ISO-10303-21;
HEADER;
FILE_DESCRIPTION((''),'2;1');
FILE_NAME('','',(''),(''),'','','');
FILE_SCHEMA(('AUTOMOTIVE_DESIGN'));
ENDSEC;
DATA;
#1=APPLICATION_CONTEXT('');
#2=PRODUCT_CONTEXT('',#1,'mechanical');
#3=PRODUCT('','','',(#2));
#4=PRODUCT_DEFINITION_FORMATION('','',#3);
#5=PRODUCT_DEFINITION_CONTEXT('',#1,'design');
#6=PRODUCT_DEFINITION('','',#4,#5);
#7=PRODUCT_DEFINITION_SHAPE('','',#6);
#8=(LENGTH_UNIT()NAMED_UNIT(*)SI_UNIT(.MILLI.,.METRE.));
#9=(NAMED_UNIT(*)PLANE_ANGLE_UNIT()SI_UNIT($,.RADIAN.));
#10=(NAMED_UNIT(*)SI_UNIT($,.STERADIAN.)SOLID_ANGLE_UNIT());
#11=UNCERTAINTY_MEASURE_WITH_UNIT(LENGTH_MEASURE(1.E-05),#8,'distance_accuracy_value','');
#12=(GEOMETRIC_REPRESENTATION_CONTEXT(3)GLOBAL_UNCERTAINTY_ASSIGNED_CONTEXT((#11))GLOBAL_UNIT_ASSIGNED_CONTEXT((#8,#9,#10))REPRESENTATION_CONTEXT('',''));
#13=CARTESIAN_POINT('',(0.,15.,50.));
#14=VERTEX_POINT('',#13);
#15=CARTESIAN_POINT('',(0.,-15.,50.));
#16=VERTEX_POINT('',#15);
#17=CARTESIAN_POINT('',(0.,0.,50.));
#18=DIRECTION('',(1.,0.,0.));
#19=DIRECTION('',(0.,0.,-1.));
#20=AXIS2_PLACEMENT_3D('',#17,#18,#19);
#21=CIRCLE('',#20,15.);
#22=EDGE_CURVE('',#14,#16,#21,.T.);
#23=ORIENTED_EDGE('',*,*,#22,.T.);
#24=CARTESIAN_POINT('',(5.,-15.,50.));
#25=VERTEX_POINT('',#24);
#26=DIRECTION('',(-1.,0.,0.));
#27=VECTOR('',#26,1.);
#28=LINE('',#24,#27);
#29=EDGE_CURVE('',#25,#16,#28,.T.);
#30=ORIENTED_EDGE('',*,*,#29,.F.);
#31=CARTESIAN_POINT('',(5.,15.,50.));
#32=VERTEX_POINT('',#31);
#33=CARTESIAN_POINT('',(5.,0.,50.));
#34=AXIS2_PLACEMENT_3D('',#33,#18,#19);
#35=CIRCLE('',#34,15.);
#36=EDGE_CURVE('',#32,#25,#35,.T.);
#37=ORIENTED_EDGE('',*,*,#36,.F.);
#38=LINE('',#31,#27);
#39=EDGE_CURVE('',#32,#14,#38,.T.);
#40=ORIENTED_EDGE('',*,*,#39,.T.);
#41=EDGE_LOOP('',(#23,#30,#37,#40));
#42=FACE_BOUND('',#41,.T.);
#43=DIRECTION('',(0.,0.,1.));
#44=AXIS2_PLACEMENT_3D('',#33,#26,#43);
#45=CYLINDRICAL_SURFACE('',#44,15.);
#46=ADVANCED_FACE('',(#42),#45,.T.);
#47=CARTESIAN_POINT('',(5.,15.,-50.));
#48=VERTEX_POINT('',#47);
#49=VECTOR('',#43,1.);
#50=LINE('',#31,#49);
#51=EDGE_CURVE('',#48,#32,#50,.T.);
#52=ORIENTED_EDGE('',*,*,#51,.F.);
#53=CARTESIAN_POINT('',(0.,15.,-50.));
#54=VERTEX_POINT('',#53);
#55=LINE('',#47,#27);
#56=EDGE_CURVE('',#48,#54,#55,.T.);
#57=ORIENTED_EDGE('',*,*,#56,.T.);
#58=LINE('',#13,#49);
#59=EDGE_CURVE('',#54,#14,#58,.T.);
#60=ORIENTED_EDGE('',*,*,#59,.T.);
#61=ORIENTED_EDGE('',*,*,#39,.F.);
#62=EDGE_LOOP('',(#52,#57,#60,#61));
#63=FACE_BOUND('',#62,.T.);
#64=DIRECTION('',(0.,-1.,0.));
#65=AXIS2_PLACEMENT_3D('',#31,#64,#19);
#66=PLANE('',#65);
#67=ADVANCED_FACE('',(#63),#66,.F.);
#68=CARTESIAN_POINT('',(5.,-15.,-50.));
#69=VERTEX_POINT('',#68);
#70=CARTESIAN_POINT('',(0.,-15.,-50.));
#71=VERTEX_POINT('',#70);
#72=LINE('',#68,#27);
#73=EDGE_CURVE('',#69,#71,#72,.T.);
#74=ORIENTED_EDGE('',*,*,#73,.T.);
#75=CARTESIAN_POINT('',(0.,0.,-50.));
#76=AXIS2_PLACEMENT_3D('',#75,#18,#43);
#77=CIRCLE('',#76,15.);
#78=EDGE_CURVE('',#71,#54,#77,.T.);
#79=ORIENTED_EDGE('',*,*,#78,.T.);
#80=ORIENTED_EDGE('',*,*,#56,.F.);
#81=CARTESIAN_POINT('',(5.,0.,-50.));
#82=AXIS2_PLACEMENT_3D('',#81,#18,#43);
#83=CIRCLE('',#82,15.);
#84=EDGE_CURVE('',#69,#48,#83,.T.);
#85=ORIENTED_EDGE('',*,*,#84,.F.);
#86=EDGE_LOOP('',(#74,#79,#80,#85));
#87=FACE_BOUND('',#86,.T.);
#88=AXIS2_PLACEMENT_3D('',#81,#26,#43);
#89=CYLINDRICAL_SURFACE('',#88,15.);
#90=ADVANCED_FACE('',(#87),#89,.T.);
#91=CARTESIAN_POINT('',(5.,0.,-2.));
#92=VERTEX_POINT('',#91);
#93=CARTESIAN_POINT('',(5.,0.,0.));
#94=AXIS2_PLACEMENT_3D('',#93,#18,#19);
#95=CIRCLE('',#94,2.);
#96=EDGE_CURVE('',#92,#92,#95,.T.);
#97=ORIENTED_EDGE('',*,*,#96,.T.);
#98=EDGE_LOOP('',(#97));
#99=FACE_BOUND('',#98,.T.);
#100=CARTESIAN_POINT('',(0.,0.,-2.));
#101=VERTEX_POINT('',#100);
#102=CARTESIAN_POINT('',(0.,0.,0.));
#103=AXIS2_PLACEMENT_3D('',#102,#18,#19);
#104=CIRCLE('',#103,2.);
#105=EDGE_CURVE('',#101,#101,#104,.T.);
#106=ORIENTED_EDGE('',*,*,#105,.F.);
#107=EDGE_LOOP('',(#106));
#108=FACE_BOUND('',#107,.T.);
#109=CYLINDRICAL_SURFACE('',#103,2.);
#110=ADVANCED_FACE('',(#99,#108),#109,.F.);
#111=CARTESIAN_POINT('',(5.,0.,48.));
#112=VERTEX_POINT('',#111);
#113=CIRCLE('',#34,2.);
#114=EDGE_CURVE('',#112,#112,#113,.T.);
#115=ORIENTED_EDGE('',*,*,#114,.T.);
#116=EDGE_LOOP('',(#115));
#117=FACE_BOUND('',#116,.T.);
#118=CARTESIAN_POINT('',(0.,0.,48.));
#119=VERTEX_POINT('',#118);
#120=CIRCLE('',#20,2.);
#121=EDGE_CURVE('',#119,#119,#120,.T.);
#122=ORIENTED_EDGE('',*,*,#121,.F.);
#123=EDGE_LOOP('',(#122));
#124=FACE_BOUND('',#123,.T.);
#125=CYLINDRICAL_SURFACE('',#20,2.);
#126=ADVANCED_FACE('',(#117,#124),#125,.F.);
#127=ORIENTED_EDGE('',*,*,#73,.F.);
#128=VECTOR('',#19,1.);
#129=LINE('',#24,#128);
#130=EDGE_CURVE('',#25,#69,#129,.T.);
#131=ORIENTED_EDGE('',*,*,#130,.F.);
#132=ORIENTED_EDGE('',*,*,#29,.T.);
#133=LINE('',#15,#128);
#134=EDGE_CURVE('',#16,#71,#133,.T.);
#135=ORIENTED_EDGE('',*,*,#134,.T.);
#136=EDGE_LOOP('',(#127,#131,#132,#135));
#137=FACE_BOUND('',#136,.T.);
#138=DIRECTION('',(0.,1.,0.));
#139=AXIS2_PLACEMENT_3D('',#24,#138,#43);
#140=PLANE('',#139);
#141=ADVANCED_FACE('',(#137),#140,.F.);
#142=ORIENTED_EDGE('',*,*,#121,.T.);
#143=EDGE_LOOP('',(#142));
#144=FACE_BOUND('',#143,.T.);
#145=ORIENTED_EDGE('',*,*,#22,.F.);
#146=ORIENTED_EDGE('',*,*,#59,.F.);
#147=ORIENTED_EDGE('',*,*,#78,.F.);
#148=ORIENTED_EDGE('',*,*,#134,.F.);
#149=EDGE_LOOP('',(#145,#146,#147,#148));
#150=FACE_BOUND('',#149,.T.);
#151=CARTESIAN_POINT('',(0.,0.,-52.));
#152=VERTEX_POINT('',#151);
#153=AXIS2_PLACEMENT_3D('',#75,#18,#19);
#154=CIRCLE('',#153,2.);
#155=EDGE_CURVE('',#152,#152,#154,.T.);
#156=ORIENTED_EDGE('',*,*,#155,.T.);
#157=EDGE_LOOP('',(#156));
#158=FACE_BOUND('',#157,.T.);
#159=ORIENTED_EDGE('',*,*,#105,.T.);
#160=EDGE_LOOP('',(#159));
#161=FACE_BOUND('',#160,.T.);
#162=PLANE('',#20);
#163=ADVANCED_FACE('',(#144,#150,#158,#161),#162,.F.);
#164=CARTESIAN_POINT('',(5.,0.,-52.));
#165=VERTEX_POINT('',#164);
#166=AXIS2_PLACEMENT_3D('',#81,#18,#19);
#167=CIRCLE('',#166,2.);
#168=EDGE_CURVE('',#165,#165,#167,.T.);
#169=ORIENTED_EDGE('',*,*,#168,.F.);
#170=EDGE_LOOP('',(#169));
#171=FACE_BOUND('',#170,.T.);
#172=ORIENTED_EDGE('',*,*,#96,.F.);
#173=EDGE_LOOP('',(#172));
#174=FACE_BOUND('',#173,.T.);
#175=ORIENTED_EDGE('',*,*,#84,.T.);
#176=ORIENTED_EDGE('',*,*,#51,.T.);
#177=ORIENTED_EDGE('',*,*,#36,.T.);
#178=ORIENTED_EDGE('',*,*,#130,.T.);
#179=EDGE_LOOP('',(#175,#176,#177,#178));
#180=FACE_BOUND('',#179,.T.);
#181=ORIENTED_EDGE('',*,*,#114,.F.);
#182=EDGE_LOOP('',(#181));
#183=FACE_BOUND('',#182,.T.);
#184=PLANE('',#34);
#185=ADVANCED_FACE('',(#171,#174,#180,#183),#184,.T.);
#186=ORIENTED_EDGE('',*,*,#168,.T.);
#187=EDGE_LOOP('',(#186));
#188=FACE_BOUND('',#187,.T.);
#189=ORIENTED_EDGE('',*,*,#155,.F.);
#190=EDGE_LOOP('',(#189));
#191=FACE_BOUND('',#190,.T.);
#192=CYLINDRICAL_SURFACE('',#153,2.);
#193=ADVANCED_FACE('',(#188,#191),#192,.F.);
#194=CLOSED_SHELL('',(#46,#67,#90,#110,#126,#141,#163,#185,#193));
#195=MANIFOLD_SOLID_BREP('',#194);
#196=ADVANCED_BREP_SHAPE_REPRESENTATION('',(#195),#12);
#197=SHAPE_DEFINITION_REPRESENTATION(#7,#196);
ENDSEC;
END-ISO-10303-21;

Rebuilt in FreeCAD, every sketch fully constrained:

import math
import FreeCAD as App
import Part
import Sketcher

V = App.Vector

doc = App.newDocument("Part")
body = doc.addObject("PartDesign::Body", "Body")

# Sketch on YZ plane
sketch1 = body.newObject("Sketcher::SketchObject", "Sketch")
sketch1.AttachmentSupport = (doc.getObject("YZ_Plane"), [""])
sketch1.MapMode = "FlatFace"
sketch1.addGeometry([
    Part.LineSegment(V(15, -50, 0), V(15, 50, 0)),
    Part.ArcOfCircle(Part.Circle(V(0, 50, 0), V(0, 0, 1), 15), math.radians(0), math.radians(180)),
    Part.LineSegment(V(-15, 50, 0), V(-15, -50, 0)),
    Part.ArcOfCircle(Part.Circle(V(0, -50, 0), V(0, 0, 1), 15), math.radians(180), math.radians(360)),
], False)
sketch1.addConstraint([
    Sketcher.Constraint("Tangent", 0, 2, 1, 1),
    Sketcher.Constraint("Tangent", 1, 2, 2, 1),
    Sketcher.Constraint("Tangent", 2, 2, 3, 1),
    Sketcher.Constraint("Tangent", 3, 2, 0, 1),
    Sketcher.Constraint("Vertical", 0),
    Sketcher.Constraint("Vertical", 2),
    Sketcher.Constraint("Symmetric", 1, 3, 3, 3, -1, 1),
    Sketcher.Constraint("Radius", 1, 15.0),
    Sketcher.Constraint("DistanceY", 0, 1, 0, 2, 100.0),
])
pad1 = body.newObject("PartDesign::Pad", "Pad")
pad1.Profile = sketch1
pad1.Length = 5

# Sketch on YZ plane
sketch2 = body.newObject("Sketcher::SketchObject", "Sketch001")
sketch2.AttachmentSupport = (doc.getObject("YZ_Plane"), [""])
sketch2.MapMode = "FlatFace"
sketch2.AttachmentOffset = App.Placement(V(0, 0, 5), App.Rotation())
sketch2.addGeometry([
    Part.Circle(V(0, 50, 0), V(0, 0, 1), 2),
    Part.Circle(V(0, 0, 0), V(0, 0, 1), 2),
    Part.Circle(V(0, -50, 0), V(0, 0, 1), 2),
], False)
sketch2.addConstraint([
    Sketcher.Constraint("Coincident", 1, 3, -1, 1),
    Sketcher.Constraint("Equal", 0, 1),
    Sketcher.Constraint("Equal", 1, 2),
    Sketcher.Constraint("Symmetric", 0, 3, 2, 3, -1, 1),
    Sketcher.Constraint("PointOnObject", 0, 3, -2),
    Sketcher.Constraint("Diameter", 0, 4.0),
    Sketcher.Constraint("DistanceY", -1, 1, 0, 3, 50.0),
])
pocket1 = body.newObject("PartDesign::Pocket", "Pocket")
pocket1.Profile = sketch2
pocket1.Type = "ThroughAll"

doc.recompute()
